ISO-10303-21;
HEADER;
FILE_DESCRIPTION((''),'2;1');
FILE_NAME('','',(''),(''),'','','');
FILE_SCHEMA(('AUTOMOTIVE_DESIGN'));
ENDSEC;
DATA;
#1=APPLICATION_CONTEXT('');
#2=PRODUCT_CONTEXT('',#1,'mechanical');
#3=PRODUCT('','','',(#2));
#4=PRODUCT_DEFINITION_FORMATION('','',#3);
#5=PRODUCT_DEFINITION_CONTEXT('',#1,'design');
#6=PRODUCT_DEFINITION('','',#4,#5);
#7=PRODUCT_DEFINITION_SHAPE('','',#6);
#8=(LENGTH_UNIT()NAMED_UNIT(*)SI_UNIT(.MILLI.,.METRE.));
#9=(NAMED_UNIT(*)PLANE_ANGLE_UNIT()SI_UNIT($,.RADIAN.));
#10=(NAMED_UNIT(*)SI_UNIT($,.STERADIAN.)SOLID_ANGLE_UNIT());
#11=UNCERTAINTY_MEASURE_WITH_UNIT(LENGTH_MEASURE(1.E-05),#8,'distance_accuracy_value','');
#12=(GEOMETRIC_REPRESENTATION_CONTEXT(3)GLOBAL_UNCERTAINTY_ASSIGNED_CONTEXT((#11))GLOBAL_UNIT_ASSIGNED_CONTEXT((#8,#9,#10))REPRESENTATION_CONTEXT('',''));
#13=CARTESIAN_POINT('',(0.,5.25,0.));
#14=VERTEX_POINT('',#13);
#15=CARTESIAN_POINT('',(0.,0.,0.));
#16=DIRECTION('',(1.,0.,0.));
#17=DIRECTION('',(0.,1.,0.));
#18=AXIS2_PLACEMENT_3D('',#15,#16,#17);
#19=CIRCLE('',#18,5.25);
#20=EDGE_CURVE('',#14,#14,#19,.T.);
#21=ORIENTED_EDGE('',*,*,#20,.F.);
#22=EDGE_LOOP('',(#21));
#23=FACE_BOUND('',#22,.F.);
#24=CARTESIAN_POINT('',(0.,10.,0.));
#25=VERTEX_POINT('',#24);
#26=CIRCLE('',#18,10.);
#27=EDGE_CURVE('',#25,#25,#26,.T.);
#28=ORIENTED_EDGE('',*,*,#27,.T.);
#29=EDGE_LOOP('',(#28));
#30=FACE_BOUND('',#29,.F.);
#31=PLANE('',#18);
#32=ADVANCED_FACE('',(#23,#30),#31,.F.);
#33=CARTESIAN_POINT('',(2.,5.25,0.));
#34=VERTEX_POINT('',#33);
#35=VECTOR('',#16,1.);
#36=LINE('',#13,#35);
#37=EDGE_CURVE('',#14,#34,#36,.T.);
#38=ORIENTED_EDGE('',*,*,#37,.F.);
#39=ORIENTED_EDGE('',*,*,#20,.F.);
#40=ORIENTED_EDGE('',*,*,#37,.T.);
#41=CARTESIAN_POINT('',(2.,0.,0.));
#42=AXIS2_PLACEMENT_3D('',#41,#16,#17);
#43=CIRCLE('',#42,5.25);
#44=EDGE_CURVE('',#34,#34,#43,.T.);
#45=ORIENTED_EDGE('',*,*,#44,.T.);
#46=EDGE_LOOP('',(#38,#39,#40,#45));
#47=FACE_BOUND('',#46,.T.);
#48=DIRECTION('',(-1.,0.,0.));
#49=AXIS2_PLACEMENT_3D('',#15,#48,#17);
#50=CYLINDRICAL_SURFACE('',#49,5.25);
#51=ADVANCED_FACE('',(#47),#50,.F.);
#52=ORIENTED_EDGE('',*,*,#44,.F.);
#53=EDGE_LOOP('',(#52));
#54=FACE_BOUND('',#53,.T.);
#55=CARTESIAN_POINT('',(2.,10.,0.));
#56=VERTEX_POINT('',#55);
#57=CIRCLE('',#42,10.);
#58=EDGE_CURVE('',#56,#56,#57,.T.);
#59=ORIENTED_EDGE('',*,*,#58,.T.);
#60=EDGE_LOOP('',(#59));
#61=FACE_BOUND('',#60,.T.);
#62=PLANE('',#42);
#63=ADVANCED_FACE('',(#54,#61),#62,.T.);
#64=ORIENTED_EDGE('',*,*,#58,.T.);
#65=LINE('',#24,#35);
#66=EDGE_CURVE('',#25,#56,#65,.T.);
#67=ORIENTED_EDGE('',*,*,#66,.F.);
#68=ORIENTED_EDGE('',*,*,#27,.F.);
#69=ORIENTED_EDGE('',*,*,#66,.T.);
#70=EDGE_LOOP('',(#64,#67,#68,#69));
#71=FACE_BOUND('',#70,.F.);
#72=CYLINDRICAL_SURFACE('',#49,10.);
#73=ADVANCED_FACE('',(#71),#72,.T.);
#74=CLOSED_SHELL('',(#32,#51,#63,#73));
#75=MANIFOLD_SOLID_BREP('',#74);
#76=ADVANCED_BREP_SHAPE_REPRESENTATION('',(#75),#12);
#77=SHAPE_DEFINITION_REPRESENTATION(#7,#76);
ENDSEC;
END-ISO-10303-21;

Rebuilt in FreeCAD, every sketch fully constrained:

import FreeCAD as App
import Part
import Sketcher

doc = App.newDocument("Part")
params = doc.addObject("Spreadsheet::Sheet", "Params")
for row, (alias, value) in enumerate([
    ("sketch1_diameter", "20 mm"),
    ("sketch1_diameter2", "10.5 mm"),
    ("pad1_length", "2 mm"),
], start=1):
    params.set(f"A{row}", alias)
    params.set(f"B{row}", "=" + value)
    params.setAlias(f"B{row}", alias)

body = doc.addObject("PartDesign::Body", "Body")

# Sketch on YZ plane
sketch1 = body.newObject("Sketcher::SketchObject", "Sketch")
sketch1.AttachmentSupport = (doc.getObject("YZ_Plane"), [""])
sketch1.MapMode = "FlatFace"
sketch1.addGeometry(Part.Circle(App.Vector(0, 0, 0), App.Vector(0, 0, 1), 10), False)
sketch1.addGeometry(Part.Circle(App.Vector(0, 0, 0), App.Vector(0, 0, 1), 5.25), False)
sketch1.addConstraint(Sketcher.Constraint("Coincident", 0, 3, -1, 1))
sketch1.addConstraint(Sketcher.Constraint("Coincident", 1, 3, -1, 1))
sketch1.addConstraint(Sketcher.Constraint("Diameter", 0, 20.0))
sketch1.addConstraint(Sketcher.Constraint("Diameter", 1, 10.5))
sketch1.setExpression("Constraints[2]", "Params.sketch1_diameter")
sketch1.setExpression("Constraints[3]", "Params.sketch1_diameter2")
pad1 = body.newObject("PartDesign::Pad", "Pad")
pad1.Profile = sketch1
pad1.setExpression("Length", "Params.pad1_length")

doc.recompute()
